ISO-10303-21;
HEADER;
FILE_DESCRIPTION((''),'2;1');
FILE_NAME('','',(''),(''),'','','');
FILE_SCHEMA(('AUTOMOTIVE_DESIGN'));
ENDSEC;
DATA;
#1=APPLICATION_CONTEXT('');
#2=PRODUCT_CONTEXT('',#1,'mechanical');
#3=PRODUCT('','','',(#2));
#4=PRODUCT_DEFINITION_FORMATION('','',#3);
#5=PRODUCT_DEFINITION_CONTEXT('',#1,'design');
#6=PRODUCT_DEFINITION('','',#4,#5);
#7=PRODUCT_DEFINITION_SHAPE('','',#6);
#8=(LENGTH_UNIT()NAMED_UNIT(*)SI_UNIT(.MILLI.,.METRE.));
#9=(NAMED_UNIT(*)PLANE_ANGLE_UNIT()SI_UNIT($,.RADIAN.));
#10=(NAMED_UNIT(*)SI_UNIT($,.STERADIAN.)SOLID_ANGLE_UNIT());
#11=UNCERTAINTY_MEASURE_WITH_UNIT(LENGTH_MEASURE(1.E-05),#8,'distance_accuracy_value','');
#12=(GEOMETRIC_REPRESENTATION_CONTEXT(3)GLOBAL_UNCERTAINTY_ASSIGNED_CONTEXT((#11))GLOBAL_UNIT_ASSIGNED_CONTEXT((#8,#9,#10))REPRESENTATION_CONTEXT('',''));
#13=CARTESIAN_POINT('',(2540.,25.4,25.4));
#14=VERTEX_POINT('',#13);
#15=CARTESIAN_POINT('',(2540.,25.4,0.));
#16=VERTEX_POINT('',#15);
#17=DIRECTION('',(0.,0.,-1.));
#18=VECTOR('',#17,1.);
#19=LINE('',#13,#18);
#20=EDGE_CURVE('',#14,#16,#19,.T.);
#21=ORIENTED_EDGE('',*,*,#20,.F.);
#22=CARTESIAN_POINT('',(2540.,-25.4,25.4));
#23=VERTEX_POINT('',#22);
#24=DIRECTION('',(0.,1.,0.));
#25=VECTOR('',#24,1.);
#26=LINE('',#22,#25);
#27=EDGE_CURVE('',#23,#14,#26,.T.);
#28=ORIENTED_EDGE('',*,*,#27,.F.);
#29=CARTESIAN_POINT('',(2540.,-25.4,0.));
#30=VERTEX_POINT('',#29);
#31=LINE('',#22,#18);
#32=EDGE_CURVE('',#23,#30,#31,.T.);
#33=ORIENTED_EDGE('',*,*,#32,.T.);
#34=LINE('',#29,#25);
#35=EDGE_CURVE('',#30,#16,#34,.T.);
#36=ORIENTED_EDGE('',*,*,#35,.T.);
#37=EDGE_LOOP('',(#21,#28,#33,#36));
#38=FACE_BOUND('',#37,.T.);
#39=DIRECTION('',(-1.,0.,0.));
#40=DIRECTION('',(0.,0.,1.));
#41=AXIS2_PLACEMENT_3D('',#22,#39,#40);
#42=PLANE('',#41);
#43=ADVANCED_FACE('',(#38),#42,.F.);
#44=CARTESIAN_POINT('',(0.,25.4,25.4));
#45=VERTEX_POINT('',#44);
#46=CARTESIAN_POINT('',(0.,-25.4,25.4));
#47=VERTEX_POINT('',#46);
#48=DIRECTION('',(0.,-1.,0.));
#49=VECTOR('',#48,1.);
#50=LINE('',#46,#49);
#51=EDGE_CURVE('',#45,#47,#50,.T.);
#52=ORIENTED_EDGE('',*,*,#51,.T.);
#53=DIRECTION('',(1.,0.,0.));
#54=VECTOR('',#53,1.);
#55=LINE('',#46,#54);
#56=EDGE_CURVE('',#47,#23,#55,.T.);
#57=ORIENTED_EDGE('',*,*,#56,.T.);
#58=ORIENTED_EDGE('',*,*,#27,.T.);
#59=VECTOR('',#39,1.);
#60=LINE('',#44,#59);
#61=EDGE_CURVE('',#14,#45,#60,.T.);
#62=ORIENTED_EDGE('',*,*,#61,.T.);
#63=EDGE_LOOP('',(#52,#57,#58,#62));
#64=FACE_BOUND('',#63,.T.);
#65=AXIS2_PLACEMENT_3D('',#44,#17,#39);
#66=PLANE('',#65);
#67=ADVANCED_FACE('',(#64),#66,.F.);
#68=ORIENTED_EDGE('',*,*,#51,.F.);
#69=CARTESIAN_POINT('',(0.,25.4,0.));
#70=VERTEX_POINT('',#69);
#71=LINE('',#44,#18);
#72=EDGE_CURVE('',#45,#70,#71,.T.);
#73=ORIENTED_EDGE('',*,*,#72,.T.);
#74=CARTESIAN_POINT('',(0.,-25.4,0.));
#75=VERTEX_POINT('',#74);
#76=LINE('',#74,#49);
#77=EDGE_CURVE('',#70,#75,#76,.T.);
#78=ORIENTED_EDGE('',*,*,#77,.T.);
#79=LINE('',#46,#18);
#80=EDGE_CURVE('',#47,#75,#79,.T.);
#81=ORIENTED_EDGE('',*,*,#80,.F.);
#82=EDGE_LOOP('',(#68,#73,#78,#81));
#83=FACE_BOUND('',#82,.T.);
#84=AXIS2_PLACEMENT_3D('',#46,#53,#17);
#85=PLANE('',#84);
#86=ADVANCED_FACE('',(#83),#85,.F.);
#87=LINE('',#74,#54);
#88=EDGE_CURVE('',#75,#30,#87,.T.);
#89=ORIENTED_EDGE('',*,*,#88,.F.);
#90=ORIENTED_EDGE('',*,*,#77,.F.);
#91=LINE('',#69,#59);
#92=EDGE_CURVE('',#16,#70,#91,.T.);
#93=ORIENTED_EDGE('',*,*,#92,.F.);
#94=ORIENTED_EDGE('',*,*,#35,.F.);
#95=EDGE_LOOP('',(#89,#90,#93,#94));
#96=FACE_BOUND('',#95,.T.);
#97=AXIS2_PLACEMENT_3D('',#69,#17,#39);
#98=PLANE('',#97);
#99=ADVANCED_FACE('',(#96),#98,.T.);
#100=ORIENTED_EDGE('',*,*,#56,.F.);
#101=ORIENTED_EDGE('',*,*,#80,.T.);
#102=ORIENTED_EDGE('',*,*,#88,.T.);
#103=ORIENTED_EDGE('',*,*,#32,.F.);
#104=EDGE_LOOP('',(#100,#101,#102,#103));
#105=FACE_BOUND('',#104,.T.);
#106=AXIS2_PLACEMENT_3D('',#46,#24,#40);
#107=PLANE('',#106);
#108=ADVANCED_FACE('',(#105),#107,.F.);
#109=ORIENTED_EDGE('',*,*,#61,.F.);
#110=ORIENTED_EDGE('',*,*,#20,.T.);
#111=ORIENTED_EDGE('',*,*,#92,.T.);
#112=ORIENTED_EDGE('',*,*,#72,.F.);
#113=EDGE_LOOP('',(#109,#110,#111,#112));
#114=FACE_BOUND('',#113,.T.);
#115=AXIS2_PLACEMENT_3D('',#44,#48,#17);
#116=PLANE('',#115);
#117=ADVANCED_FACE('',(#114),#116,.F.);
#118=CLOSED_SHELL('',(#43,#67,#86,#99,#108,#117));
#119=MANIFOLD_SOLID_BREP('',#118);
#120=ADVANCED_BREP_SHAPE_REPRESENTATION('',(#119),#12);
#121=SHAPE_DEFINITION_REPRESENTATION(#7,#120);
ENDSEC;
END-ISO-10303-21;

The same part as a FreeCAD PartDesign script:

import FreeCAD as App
import Part
import Sketcher

V = App.Vector
Q = App.Units.Quantity


def add_polygon(sketch, points):
    """Adds a closed chain of lines whose ends are joined by coincident constraints."""
    first, n = sketch.GeometryCount, len(points)
    for a, b in zip(points, points[1:] + points[:1]):
        sketch.addGeometry(Part.LineSegment(App.Vector(*a, 0), App.Vector(*b, 0)), False)
    for i in range(n):
        sketch.addConstraint(Sketcher.Constraint("Coincident", first + i, 2, first + (i + 1) % n, 1))

doc = App.newDocument("Part")
params = doc.addObject("Spreadsheet::Sheet", "Params")
for row, (alias, value) in enumerate([
    ("sketch1_width", "100 in"),
    ("sketch1_height", "2 in"),
    ("pad1_length", "1 in"),
], start=1):
    params.set(f"A{row}", alias)
    params.set(f"B{row}", "=" + value)
    params.setAlias(f"B{row}", alias)

body = doc.addObject("PartDesign::Body", "Body")

sketch1 = body.newObject("Sketcher::SketchObject", "Sketch")
sketch1.AttachmentSupport = (doc.getObject("XY_Plane"), [""])
sketch1.MapMode = "FlatFace"
add_polygon(sketch1, [(0, 25.4), (0, -25.4), (2540, -25.4), (2540, 25.4)])
sketch1.addConstraint(Sketcher.Constraint("Vertical", 0))
sketch1.addConstraint(Sketcher.Constraint("Horizontal", 1))
sketch1.addConstraint(Sketcher.Constraint("Vertical", 2))
sketch1.addConstraint(Sketcher.Constraint("Horizontal", 3))
sketch1.addConstraint(Sketcher.Constraint("Symmetric", 0, 2, 3, 2, -1, 1))
sketch1.addConstraint(Sketcher.Constraint("DistanceX", 1, 1, 1, 2, Q("100 in")))
sketch1.addConstraint(Sketcher.Constraint("DistanceY", 0, 2, 0, 1, Q("2 in")))
sketch1.setExpression("Constraints[9]", "Params.sketch1_width")
sketch1.setExpression("Constraints[10]", "Params.sketch1_height")
pad1 = body.newObject("PartDesign::Pad", "Pad")
pad1.Profile = sketch1
pad1.setExpression("Length", "Params.pad1_length")

doc.recompute()
